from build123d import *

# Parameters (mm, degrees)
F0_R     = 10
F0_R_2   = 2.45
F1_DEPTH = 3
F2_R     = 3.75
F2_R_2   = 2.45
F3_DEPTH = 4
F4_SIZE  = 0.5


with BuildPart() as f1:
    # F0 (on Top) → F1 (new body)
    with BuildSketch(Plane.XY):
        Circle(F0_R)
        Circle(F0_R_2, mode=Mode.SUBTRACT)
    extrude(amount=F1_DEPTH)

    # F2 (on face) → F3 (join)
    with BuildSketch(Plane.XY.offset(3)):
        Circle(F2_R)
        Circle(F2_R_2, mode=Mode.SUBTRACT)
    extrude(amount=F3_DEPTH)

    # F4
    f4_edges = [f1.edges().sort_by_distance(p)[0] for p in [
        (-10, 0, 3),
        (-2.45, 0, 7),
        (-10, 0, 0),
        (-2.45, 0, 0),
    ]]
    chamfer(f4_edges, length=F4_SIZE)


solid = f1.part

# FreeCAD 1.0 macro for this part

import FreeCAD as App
import Part
import Sketcher
Q = App.Units.Quantity


def edges_at(feature, points):
    """Names of the edges that pass closest to the given points."""
    edges = feature.Shape.Edges
    near = lambda p: min(range(len(edges)), key=lambda i: edges[i].distToShape(Part.Vertex(*p))[0])
    return sorted({f"Edge{near(p) + 1}" for p in points})

doc = App.newDocument("Part")
params = doc.addObject("Spreadsheet::Sheet", "Params")
for row, (alias, value) in enumerate([
    ("sketch1_diameter", "20 mm"),
    ("sketch1_diameter2", "4.9 mm"),
    ("pad1_length", "3 mm"),
    ("sketch2_diameter", "7.5 mm"),
    ("sketch2_diameter2", "4.9 mm"),
    ("pad2_length", "4 mm"),
    ("chamfer_size", "0.5 mm"),
], start=1):
    params.set(f"A{row}", alias)
    params.set(f"B{row}", "=" + value)
    params.setAlias(f"B{row}", alias)

body = doc.addObject("PartDesign::Body", "Body")

# Sketch on XY plane
sketch1 = doc.addObject("Sketcher::SketchObject", "Sketch")
body.addObject(sketch1)
sketch1.AttachmentSupport = (doc.XY_Plane, [""])
sketch1.MapMode = "FlatFace"
sketch1.addGeometry([
    Part.Circle(App.Vector(0, 0, 0), App.Vector(0, 0, 1), 10),
    Part.Circle(App.Vector(0, 0, 0), App.Vector(0, 0, 1), 2.45),
], False)
sketch1.addConstraint([
    Sketcher.Constraint("Coincident", 0, 3, -1, 1),
    Sketcher.Constraint("Coincident", 1, 3, -1, 1),
    Sketcher.Constraint("Diameter", 0, Q("20 mm")),
    Sketcher.Constraint("Diameter", 1, Q("4.9 mm")),
])
sketch1.setExpression("Constraints[2]", "Params.sketch1_diameter")
sketch1.setExpression("Constraints[3]", "Params.sketch1_diameter2")
pad1 = doc.addObject("PartDesign::Pad", "Pad")
body.addObject(pad1)
pad1.Profile = sketch1
pad1.setExpression("Length", "Params.pad1_length")

# Sketch on XY plane
sketch2 = doc.addObject("Sketcher::SketchObject", "Sketch001")
body.addObject(sketch2)
sketch2.AttachmentSupport = (doc.XY_Plane, [""])
sketch2.MapMode = "FlatFace"
sketch2.AttachmentOffset = App.Placement(App.Vector(0, 0, 3), App.Rotation())
sketch2.addGeometry([
    Part.Circle(App.Vector(0, 0, 0), App.Vector(0, 0, 1), 3.75),
    Part.Circle(App.Vector(0, 0, 0), App.Vector(0, 0, 1), 2.45),
], False)
sketch2.addConstraint([
    Sketcher.Constraint("Coincident", 0, 3, -1, 1),
    Sketcher.Constraint("Coincident", 1, 3, -1, 1),
    Sketcher.Constraint("Diameter", 0, Q("7.5 mm")),
    Sketcher.Constraint("Diameter", 1, Q("4.9 mm")),
])
sketch2.setExpression("Constraints[2]", "Params.sketch2_diameter")
sketch2.setExpression("Constraints[3]", "Params.sketch2_diameter2")
pad2 = doc.addObject("PartDesign::Pad", "Pad001")
body.addObject(pad2)
pad2.Profile = sketch2
pad2.setExpression("Length", "Params.pad2_length")
doc.recompute()

chamfer = doc.addObject("PartDesign::Chamfer", "Chamfer")
body.addObject(chamfer)
chamfer.Base = (pad2, edges_at(pad2, [
    (-10, 0, 3),
    (-2.45, 0, 7),
    (-10, 0, 0),
    (-2.45, 0, 0),
]))
chamfer.setExpression("Size", "Params.chamfer_size")

doc.recompute()
